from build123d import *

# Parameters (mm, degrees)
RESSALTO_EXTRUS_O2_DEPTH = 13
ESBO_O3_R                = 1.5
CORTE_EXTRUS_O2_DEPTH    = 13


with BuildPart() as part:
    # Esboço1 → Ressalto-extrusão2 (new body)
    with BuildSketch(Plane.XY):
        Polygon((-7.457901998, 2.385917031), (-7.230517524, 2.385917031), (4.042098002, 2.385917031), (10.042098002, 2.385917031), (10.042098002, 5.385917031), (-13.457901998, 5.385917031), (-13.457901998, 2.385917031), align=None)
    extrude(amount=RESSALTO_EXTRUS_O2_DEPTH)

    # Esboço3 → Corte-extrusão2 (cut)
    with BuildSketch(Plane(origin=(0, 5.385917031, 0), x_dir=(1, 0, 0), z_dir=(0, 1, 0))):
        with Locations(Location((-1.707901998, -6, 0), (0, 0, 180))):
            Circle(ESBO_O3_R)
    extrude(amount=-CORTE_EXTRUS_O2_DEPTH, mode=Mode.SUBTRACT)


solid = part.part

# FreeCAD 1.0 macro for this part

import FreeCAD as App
import Part
import Sketcher
from FreeCAD import Vector
Q = App.Units.Quantity

doc = App.newDocument("Part")
body = doc.addObject("PartDesign::Body", "Body")

sketch1 = body.newObject("Sketcher::SketchObject", "Sketch")
sketch1.AttachmentSupport = (doc.getObject("XY_Plane"), [""])
sketch1.MapMode = "FlatFace"
sketch1.addGeometry([
    Part.LineSegment(Vector(10.042098, 2.385917, 0), Vector(10.042098, 5.385917, 0)),
    Part.LineSegment(Vector(10.042098, 5.385917, 0), Vector(-13.457902, 5.385917, 0)),
    Part.LineSegment(Vector(-13.457902, 5.385917, 0), Vector(-13.457902, 2.385917, 0)),
    Part.LineSegment(Vector(-13.457902, 2.385917, 0), Vector(10.042098, 2.385917, 0)),
], False)
sketch1.addConstraint([
    Sketcher.Constraint("Coincident", 0, 2, 1, 1),
    Sketcher.Constraint("Coincident", 1, 2, 2, 1),
    Sketcher.Constraint("Coincident", 2, 2, 3, 1),
    Sketcher.Constraint("Coincident", 3, 2, 0, 1),
    Sketcher.Constraint("Vertical", 0),
    Sketcher.Constraint("Horizontal", 1),
    Sketcher.Constraint("Vertical", 2),
    Sketcher.Constraint("Horizontal", 3),
    Sketcher.Constraint("DistanceY", 0, 1, 0, 2, Q("3 mm")),
    Sketcher.Constraint("DistanceX", 1, 2, 1, 1, Q("23.5 mm")),
    Sketcher.Constraint("DistanceX", -1, 1, 0, 2, Q("10.042098 mm")),
    Sketcher.Constraint("DistanceY", -1, 1, 0, 2, Q("5.385917 mm")),
])
pad1 = body.newObject("PartDesign::Pad", "Pad")
pad1.Profile = sketch1
pad1.Length = 13

sketch2 = body.newObject("Sketcher::SketchObject", "Sketch001")
sketch2.AttachmentSupport = (doc.getObject("XZ_Plane"), [""])
sketch2.MapMode = "FlatFace"
sketch2.AttachmentOffset = App.Placement(Vector(0, 0, -5.385917), App.Rotation())
sketch2.addGeometry(Part.Circle(Vector(-1.707902, 6, 0), Vector(0, 0, 1), 1.5), False)
sketch2.addConstraint([
    Sketcher.Constraint("Diameter", 0, Q("3 mm")),
    Sketcher.Constraint("DistanceY", -1, 1, 0, 3, Q("6 mm")),
    Sketcher.Constraint("DistanceX", 0, 3, -1, 1, Q("1.707902 mm")),
])
pocket1 = body.newObject("PartDesign::Pocket", "Pocket")
pocket1.Profile = sketch2
pocket1.Length = 13
pocket1.Reversed = True

doc.recompute()
